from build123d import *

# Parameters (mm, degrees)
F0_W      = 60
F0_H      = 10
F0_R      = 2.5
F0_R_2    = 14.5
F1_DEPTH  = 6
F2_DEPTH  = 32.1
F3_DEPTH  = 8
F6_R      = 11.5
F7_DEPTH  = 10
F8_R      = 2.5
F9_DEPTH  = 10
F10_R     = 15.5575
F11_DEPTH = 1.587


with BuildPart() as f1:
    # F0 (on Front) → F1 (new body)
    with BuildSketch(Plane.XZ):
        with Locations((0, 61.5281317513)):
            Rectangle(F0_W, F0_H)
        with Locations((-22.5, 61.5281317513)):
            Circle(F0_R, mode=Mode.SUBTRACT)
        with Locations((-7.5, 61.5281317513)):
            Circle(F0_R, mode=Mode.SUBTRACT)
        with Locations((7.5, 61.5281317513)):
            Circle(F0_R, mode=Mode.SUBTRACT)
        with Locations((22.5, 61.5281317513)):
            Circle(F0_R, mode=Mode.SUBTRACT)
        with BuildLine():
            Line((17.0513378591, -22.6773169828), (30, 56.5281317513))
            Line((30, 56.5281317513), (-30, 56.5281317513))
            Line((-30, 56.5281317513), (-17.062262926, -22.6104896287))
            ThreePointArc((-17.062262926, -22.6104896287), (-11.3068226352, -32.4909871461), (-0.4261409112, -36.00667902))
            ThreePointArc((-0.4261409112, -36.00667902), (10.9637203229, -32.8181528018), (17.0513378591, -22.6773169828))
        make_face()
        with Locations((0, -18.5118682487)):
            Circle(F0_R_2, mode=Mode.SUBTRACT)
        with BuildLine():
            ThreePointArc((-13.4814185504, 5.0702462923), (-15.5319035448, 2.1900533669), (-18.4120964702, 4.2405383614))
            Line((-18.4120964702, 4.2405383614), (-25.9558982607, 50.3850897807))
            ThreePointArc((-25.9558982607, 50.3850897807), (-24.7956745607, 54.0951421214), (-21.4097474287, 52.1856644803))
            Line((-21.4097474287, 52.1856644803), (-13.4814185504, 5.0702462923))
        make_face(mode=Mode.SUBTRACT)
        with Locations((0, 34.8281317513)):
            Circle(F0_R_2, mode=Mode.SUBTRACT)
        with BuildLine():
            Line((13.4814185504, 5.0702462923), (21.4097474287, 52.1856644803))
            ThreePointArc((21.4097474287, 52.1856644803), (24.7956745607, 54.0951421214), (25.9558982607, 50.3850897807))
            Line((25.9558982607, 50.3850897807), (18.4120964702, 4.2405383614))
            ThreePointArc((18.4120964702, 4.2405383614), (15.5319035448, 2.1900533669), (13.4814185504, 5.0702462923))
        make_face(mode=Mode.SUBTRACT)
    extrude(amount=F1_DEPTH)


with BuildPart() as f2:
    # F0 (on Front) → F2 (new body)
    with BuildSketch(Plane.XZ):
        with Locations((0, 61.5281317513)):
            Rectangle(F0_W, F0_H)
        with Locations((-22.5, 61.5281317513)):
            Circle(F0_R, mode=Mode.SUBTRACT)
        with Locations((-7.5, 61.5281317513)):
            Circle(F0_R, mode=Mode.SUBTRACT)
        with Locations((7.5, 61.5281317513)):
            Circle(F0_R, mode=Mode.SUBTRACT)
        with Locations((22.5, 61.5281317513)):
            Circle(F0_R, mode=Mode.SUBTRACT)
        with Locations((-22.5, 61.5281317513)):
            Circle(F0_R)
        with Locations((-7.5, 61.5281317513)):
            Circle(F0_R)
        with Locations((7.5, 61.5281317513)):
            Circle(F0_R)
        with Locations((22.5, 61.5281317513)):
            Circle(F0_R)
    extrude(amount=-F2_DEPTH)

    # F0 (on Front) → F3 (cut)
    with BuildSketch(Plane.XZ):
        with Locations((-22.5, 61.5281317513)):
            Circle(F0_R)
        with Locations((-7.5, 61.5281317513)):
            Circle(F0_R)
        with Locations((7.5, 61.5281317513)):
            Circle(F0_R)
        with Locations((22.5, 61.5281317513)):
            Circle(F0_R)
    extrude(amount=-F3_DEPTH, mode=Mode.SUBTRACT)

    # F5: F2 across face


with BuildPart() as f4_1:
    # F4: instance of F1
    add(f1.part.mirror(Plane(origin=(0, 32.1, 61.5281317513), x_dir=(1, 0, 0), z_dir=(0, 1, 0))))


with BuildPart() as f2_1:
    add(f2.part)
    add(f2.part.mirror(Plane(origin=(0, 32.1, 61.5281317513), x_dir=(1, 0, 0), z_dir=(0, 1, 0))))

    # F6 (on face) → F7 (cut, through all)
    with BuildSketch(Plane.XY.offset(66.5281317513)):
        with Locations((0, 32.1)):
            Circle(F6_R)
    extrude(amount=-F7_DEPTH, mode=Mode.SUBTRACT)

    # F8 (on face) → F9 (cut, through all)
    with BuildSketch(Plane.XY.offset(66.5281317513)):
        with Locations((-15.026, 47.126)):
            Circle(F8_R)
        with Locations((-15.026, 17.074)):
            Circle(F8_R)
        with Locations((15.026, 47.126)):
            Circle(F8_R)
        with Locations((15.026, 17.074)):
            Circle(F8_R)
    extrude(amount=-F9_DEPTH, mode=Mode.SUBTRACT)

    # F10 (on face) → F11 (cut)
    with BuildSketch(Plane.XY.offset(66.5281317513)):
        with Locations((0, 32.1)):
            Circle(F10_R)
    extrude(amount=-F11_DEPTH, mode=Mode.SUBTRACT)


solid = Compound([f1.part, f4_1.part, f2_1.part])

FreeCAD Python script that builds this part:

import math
import FreeCAD as App
import Part
import Sketcher
Q = App.Units.Quantity

doc = App.newDocument("Part")
params = doc.addObject("Spreadsheet::Sheet", "Params")
for row, (alias, value) in enumerate([
    ("sketch1_diameter", "29 mm"),
    ("sketch1_diameter2", "5 mm"),
    ("sketch1_radius", "16 mm"),
    ("sketch1_width", "60 mm"),
    ("sketch1_height", "10 mm"),
    ("pad1_length", "6 mm"),
    ("sketch2_width", "60 mm"),
    ("sketch2_height", "10 mm"),
    ("pad2_length", "32.1 mm"),
    ("sketch3_diameter", "5 mm"),
    ("pocket1_length", "8 mm"),
    ("sketch4_diameter", "23 mm"),
    ("sketch5_diameter", "5 mm"),
    ("pocket4_length", "1.587 mm"),
], start=1):
    params.set(f"A{row}", alias)
    params.set(f"B{row}", "=" + value)
    params.setAlias(f"B{row}", alias)

body = doc.addObject("PartDesign::Body", "Body")

# Sketch on XZ plane
sketch1 = body.newObject("Sketcher::SketchObject", "Sketch")
sketch1.AttachmentSupport = (doc.getObject("XZ_Plane"), [""])
sketch1.MapMode = "FlatFace"
sketch1.addGeometry(Part.LineSegment(App.Vector(-30, 66.5, 0), App.Vector(-30, 56.5, 0)), False)
sketch1.addGeometry(Part.LineSegment(App.Vector(-30, 56.5, 0), App.Vector(-17.1, -22.6, 0)), False)
sketch1.addGeometry(Part.ArcOfCircle(Part.Circle(App.Vector(-1.3, -20, 0), App.Vector(0, 0, 1), 16), math.radians(-171), math.radians(-87)), False)
sketch1.addGeometry(Part.ArcOfCircle(Part.Circle(App.Vector(1.3, -20.1, 0), App.Vector(0, 0, 1), 16), math.radians(-96), math.radians(-9)), False)
sketch1.addGeometry(Part.LineSegment(App.Vector(17.1, -22.7, 0), App.Vector(30, 56.5, 0)), False)
sketch1.addGeometry(Part.LineSegment(App.Vector(30, 56.5, 0), App.Vector(30, 66.5, 0)), False)
sketch1.addGeometry(Part.LineSegment(App.Vector(30, 66.5, 0), App.Vector(-30, 66.5, 0)), False)
sketch1.addGeometry(Part.Circle(App.Vector(0, -18.5, 0), App.Vector(0, 0, 1), 14.5), False)
sketch1.addGeometry(Part.LineSegment(App.Vector(-21.4, 52.2, 0), App.Vector(-13.5, 5.1, 0)), False)
sketch1.addGeometry(Part.ArcOfCircle(Part.Circle(App.Vector(-15.9, 4.7, 0), App.Vector(0, 0, 1), 2.5), math.radians(-170), math.radians(10)), False)
sketch1.addGeometry(Part.LineSegment(App.Vector(-18.4, 4.2, 0), App.Vector(-26, 50.4, 0)), False)
sketch1.addGeometry(Part.ArcOfCircle(Part.Circle(App.Vector(-23.9, 51.8, 0), App.Vector(0, 0, 1), 2.5), math.radians(10), math.radians(214)), False)
sketch1.addGeometry(Part.Circle(App.Vector(-22.5, 61.5, 0), App.Vector(0, 0, 1), 2.5), False)
sketch1.addGeometry(Part.Circle(App.Vector(-7.5, 61.5, 0), App.Vector(0, 0, 1), 2.5), False)
sketch1.addGeometry(Part.Circle(App.Vector(0, 34.8, 0), App.Vector(0, 0, 1), 14.5), False)
sketch1.addGeometry(Part.ArcOfCircle(Part.Circle(App.Vector(15.9, 4.7, 0), App.Vector(0, 0, 1), 2.5), math.radians(170), math.radians(350)), False)
sketch1.addGeometry(Part.LineSegment(App.Vector(13.5, 5.1, 0), App.Vector(21.4, 52.2, 0)), False)
sketch1.addGeometry(Part.ArcOfCircle(Part.Circle(App.Vector(23.9, 51.8, 0), App.Vector(0, 0, 1), 2.5), math.radians(-34), math.radians(170)), False)
sketch1.addGeometry(Part.LineSegment(App.Vector(26, 50.4, 0), App.Vector(18.4, 4.2, 0)), False)
sketch1.addGeometry(Part.Circle(App.Vector(7.5, 61.5, 0), App.Vector(0, 0, 1), 2.5), False)
sketch1.addGeometry(Part.Circle(App.Vector(22.5, 61.5, 0), App.Vector(0, 0, 1), 2.5), False)
sketch1.addConstraint(Sketcher.Constraint("Coincident", 0, 2, 1, 1))
sketch1.addConstraint(Sketcher.Constraint("Tangent", 1, 2, 2, 1))
sketch1.addConstraint(Sketcher.Constraint("Coincident", 2, 2, 3, 1))
sketch1.addConstraint(Sketcher.Constraint("Tangent", 3, 2, 4, 1))
sketch1.addConstraint(Sketcher.Constraint("Coincident", 4, 2, 5, 1))
sketch1.addConstraint(Sketcher.Constraint("Coincident", 5, 2, 6, 1))
sketch1.addConstraint(Sketcher.Constraint("Coincident", 6, 2, 0, 1))
sketch1.addConstraint(Sketcher.Constraint("Tangent", 8, 2, 9, 2))
sketch1.addConstraint(Sketcher.Constraint("Coincident", 9, 1, 10, 1))
sketch1.addConstraint(Sketcher.Constraint("Coincident", 10, 2, 11, 2))
sketch1.addConstraint(Sketcher.Constraint("Tangent", 11, 1, 8, 1))
sketch1.addConstraint(Sketcher.Constraint("Tangent", 15, 1, 16, 1))
sketch1.addConstraint(Sketcher.Constraint("Tangent", 16, 2, 17, 2))
sketch1.addConstraint(Sketcher.Constraint("Coincident", 17, 1, 18, 1))
sketch1.addConstraint(Sketcher.Constraint("Coincident", 18, 2, 15, 2))
sketch1.addConstraint(Sketcher.Constraint("Vertical", 0))
sketch1.addConstraint(Sketcher.Constraint("Vertical", 5))
sketch1.addConstraint(Sketcher.Constraint("Horizontal", 6))
sketch1.addConstraint(Sketcher.Constraint("Equal", 2, 3))
sketch1.addConstraint(Sketcher.Constraint("Equal", 9, 11))
sketch1.addConstraint(Sketcher.Constraint("Equal", 11, 12))
sketch1.addConstraint(Sketcher.Constraint("Equal", 12, 13))
sketch1.addConstraint(Sketcher.Constraint("Equal", 7, 14))
sketch1.addConstraint(Sketcher.Constraint("Equal", 13, 15))
sketch1.addConstraint(Sketcher.Constraint("Equal", 15, 17))
sketch1.addConstraint(Sketcher.Constraint("Equal", 17, 19))
sketch1.addConstraint(Sketcher.Constraint("Equal", 19, 20))
sketch1.addConstraint(Sketcher.Constraint("Symmetric", 9, 3, 15, 3, -2))
sketch1.addConstraint(Sketcher.Constraint("Symmetric", 11, 3, 17, 3, -2))
sketch1.addConstraint(Sketcher.Constraint("Symmetric", 13, 3, 19, 3, -2))
sketch1.addConstraint(Sketcher.Constraint("Symmetric", 12, 3, 20, 3, -2))
sketch1.addConstraint(Sketcher.Constraint("Symmetric", 0, 2, 4, 2, -2))
sketch1.addConstraint(Sketcher.Constraint("PointOnObject", 7, 3, -2))
sketch1.addConstraint(Sketcher.Constraint("PointOnObject", 14, 3, -2))
sketch1.addConstraint(Sketcher.Constraint("Parallel", 1, 10))
sketch1.addConstraint(Sketcher.Constraint("Parallel", 4, 18))
sketch1.addConstraint(Sketcher.Constraint("Horizontal", 12, 3, 13, 3))
sketch1.addConstraint(Sketcher.Constraint("Horizontal", 10, 2, 17, 1))
sketch1.addConstraint(Sketcher.Constraint("Horizontal", 9, 1, 18, 2))
sketch1.addConstraint(Sketcher.Constraint("Diameter", 7, Q("29 mm")))
sketch1.addConstraint(Sketcher.Constraint("Diameter", 12, Q("5 mm")))
sketch1.addConstraint(Sketcher.Constraint("Radius", 2, Q("16 mm")))
sketch1.addConstraint(Sketcher.Constraint("DistanceX", 6, 2, 6, 1, Q("60 mm")))
sketch1.addConstraint(Sketcher.Constraint("DistanceY", 0, 2, 0, 1, Q("10 mm")))
sketch1.addConstraint(Sketcher.Constraint("DistanceX", 12, 3, 13, 3, Q("15 mm")))
sketch1.addConstraint(Sketcher.Constraint("DistanceX", 13, 3, 19, 3, Q("15 mm")))
sketch1.addConstraint(Sketcher.Constraint("DistanceY", 0, 2, 12, 3, Q("5 mm")))
sketch1.addConstraint(Sketcher.Constraint("DistanceY", 14, 3, 13, 3, Q("26.7 mm")))
sketch1.addConstraint(Sketcher.Constraint("DistanceY", 7, 3, 12, 3, Q("80.04 mm")))
sketch1.addConstraint(Sketcher.Constraint("DistanceX", 10, 2, -1, 1, Q("25.955898 mm")))
sketch1.addConstraint(Sketcher.Constraint("DistanceX", 3, 3, 15, 3, Q("14.685801 mm")))
sketch1.addConstraint(Sketcher.Constraint("Distance", 1, Q("80.189192 mm")))
sketch1.addConstraint(Sketcher.Constraint("Distance", 8, Q("47.77783 mm")))
sketch1.addConstraint(Sketcher.Constraint("DistanceX", 2, 3, -1, 1, Q("1.271881 mm")))
sketch1.addConstraint(Sketcher.Constraint("DistanceY", 7, 3, -1, 1, Q("18.511868 mm")))
sketch1.addConstraint(Sketcher.Constraint("DistanceY", -1, 1, 11, 3, Q("51.770811 mm")))
sketch1.addConstraint(Sketcher.Constraint("DistanceX", 2, 2, -1, 1, Q("0.426141 mm")))
sketch1.addConstraint(Sketcher.Constraint("DistanceY", -1, 1, 9, 1, Q("4.240538 mm")))
sketch1.setExpression("Constraints[39]", "Params.sketch1_diameter")
sketch1.setExpression("Constraints[40]", "Params.sketch1_diameter2")
sketch1.setExpression("Constraints[41]", "Params.sketch1_radius")
sketch1.setExpression("Constraints[42]", "Params.sketch1_width")
sketch1.setExpression("Constraints[43]", "Params.sketch1_height")
pad1 = body.newObject("PartDesign::Pad", "Pad")
pad1.Profile = sketch1
pad1.setExpression("Length", "Params.pad1_length")
body2 = doc.addObject("PartDesign::Body", "Body001")

# Sketch on XZ plane
sketch2 = body2.newObject("Sketcher::SketchObject", "Sketch001")
sketch2.AttachmentSupport = (doc.getObject("XZ_Plane001"), [""])
sketch2.MapMode = "FlatFace"
sketch2.addGeometry(Part.LineSegment(App.Vector(-30, 67, 0), App.Vector(-30, 57, 0)), False)
sketch2.addGeometry(Part.LineSegment(App.Vector(-30, 57, 0), App.Vector(30, 57, 0)), False)
sketch2.addGeometry(Part.LineSegment(App.Vector(30, 57, 0), App.Vector(30, 67, 0)), False)
sketch2.addGeometry(Part.LineSegment(App.Vector(30, 67, 0), App.Vector(-30, 67, 0)), False)
sketch2.addConstraint(Sketcher.Constraint("Coincident", 0, 2, 1, 1))
sketch2.addConstraint(Sketcher.Constraint("Coincident", 1, 2, 2, 1))
sketch2.addConstraint(Sketcher.Constraint("Coincident", 2, 2, 3, 1))
sketch2.addConstraint(Sketcher.Constraint("Coincident", 3, 2, 0, 1))
sketch2.addConstraint(Sketcher.Constraint("Vertical", 0))
sketch2.addConstraint(Sketcher.Constraint("Horizontal", 1))
sketch2.addConstraint(Sketcher.Constraint("Vertical", 2))
sketch2.addConstraint(Sketcher.Constraint("Horizontal", 3))
sketch2.addConstraint(Sketcher.Constraint("DistanceX", 1, 1, 1, 2, Q("60 mm")))
sketch2.addConstraint(Sketcher.Constraint("DistanceY", 0, 2, 0, 1, Q("10 mm")))
sketch2.addConstraint(Sketcher.Constraint("DistanceX", 0, 2, -1, 1, Q("30 mm")))
sketch2.addConstraint(Sketcher.Constraint("DistanceY", -1, 1, 0, 2, Q("56.528132 mm")))
sketch2.setExpression("Constraints[8]", "Params.sketch2_width")
sketch2.setExpression("Constraints[9]", "Params.sketch2_height")
pad2 = body2.newObject("PartDesign::Pad", "Pad001")
pad2.Profile = sketch2
pad2.setExpression("Length", "Params.pad2_length")
pad2.Reversed = True

# Sketch on XZ plane
sketch3 = body2.newObject("Sketcher::SketchObject", "Sketch002")
sketch3.AttachmentSupport = (doc.getObject("XZ_Plane001"), [""])
sketch3.MapMode = "FlatFace"
sketch3.addGeometry(Part.Circle(App.Vector(-22.5, 61.5, 0), App.Vector(0, 0, 1), 2.5), False)
sketch3.addGeometry(Part.Circle(App.Vector(-7.5, 61.5, 0), App.Vector(0, 0, 1), 2.5), False)
sketch3.addGeometry(Part.Circle(App.Vector(7.5, 61.5, 0), App.Vector(0, 0, 1), 2.5), False)
sketch3.addGeometry(Part.Circle(App.Vector(22.5, 61.5, 0), App.Vector(0, 0, 1), 2.5), False)
sketch3.addConstraint(Sketcher.Constraint("Equal", 0, 1))
sketch3.addConstraint(Sketcher.Constraint("Equal", 1, 2))
sketch3.addConstraint(Sketcher.Constraint("Equal", 2, 3))
sketch3.addConstraint(Sketcher.Constraint("Symmetric", 1, 3, 2, 3, -2))
sketch3.addConstraint(Sketcher.Constraint("Symmetric", 0, 3, 3, 3, -2))
sketch3.addConstraint(Sketcher.Constraint("Horizontal", 0, 3, 1, 3))
sketch3.addConstraint(Sketcher.Constraint("Diameter", 0, Q("5 mm")))
sketch3.addConstraint(Sketcher.Constraint("DistanceX", 0, 3, 1, 3, Q("15 mm")))
sketch3.addConstraint(Sketcher.Constraint("DistanceX", 1, 3, 2, 3, Q("15 mm")))
sketch3.addConstraint(Sketcher.Constraint("DistanceY", -1, 1, 0, 3, Q("61.528132 mm")))
sketch3.setExpression("Constraints[6]", "Params.sketch3_diameter")
pocket1 = body2.newObject("PartDesign::Pocket", "Pocket")
pocket1.Profile = sketch3
pocket1.setExpression("Length", "Params.pocket1_length")
body3 = doc.addObject("PartDesign::Body", "Body002")
doc.recompute()

mirroring = doc.addObject("Part::Mirroring", "Mirroring")
mirroring.Source = body
mirroring.Base = App.Vector(0, 32.1, 61.528132)
mirroring.Normal = App.Vector(0, 1, 0)
body3.BaseFeature = mirroring
doc.recompute()
body4 = doc.addObject("PartDesign::Body", "Body003")
doc.recompute()

body4.BaseFeature = body2
doc.recompute()

mirroring2 = doc.addObject("Part::Mirroring", "Mirroring001")
mirroring2.Source = body2
mirroring2.Base = App.Vector(0, 32.1, 61.528132)
mirroring2.Normal = App.Vector(0, 1, 0)
body5 = doc.addObject("PartDesign::Body", "Body004")
body5.BaseFeature = mirroring2
boolean = body4.newObject("PartDesign::Boolean", "Boolean")
boolean.Type = "Fuse"
boolean.addObjects([body5])
doc.recompute()

# Sketch on XY plane
sketch4 = body4.newObject("Sketcher::SketchObject", "Sketch003")
sketch4.AttachmentSupport = (doc.getObject("XY_Plane003"), [""])
sketch4.MapMode = "FlatFace"
sketch4.AttachmentOffset = App.Placement(App.Vector(0, 0, 66.528132), App.Rotation())
sketch4.addGeometry(Part.Circle(App.Vector(0, 32, 0), App.Vector(0, 0, 1), 12), False)
sketch4.addConstraint(Sketcher.Constraint("PointOnObject", 0, 3, -2))
sketch4.addConstraint(Sketcher.Constraint("Diameter", 0, Q("23 mm")))
sketch4.addConstraint(Sketcher.Constraint("DistanceY", -1, 1, 0, 3, Q("32.1 mm")))
sketch4.setExpression("Constraints[1]", "Params.sketch4_diameter")
pocket2 = body4.newObject("PartDesign::Pocket", "Pocket001")
pocket2.Profile = sketch4
pocket2.Type = "ThroughAll"

# Sketch on XY plane
sketch5 = body4.newObject("Sketcher::SketchObject", "Sketch004")
sketch5.AttachmentSupport = (doc.getObject("XY_Plane003"), [""])
sketch5.MapMode = "FlatFace"
sketch5.AttachmentOffset = App.Placement(App.Vector(0, 0, 66.528132), App.Rotation())
sketch5.addGeometry(Part.Circle(App.Vector(-15, 47.1, 0), App.Vector(0, 0, 1), 2.5), False)
sketch5.addGeometry(Part.Circle(App.Vector(-15, 17.1, 0), App.Vector(0, 0, 1), 2.5), False)
sketch5.addGeometry(Part.Circle(App.Vector(15, 47.1, 0), App.Vector(0, 0, 1), 2.5), False)
sketch5.addGeometry(Part.Circle(App.Vector(15, 17.1, 0), App.Vector(0, 0, 1), 2.5), False)
sketch5.addConstraint(Sketcher.Constraint("Equal", 0, 1))
sketch5.addConstraint(Sketcher.Constraint("Equal", 1, 2))
sketch5.addConstraint(Sketcher.Constraint("Equal", 2, 3))
sketch5.addConstraint(Sketcher.Constraint("Symmetric", 0, 3, 2, 3, -2))
sketch5.addConstraint(Sketcher.Constraint("Symmetric", 1, 3, 3, 3, -2))
sketch5.addConstraint(Sketcher.Constraint("Vertical", 0, 3, 1, 3))
sketch5.addConstraint(Sketcher.Constraint("Diameter", 0, Q("5 mm")))
sketch5.addConstraint(Sketcher.Constraint("DistanceX", 0, 3, -1, 1, Q("15.026 mm")))
sketch5.addConstraint(Sketcher.Constraint("DistanceY", -1, 1, 0, 3, Q("47.126 mm")))
sketch5.addConstraint(Sketcher.Constraint("DistanceY", -1, 1, 1, 3, Q("17.074 mm")))
sketch5.setExpression("Constraints[6]", "Params.sketch5_diameter")
pocket3 = body4.newObject("PartDesign::Pocket", "Pocket002")
pocket3.Profile = sketch5
pocket3.Type = "ThroughAll"

# Sketch on XY plane
sketch6 = body4.newObject("Sketcher::SketchObject", "Sketch005")
sketch6.AttachmentSupport = (doc.getObject("XY_Plane003"), [""])
sketch6.MapMode = "FlatFace"
sketch6.AttachmentOffset = App.Placement(App.Vector(0, 0, 66.528132), App.Rotation())
sketch6.addGeometry(Part.Circle(App.Vector(0, 32, 0), App.Vector(0, 0, 1), 16), False)
sketch6.addConstraint(Sketcher.Constraint("PointOnObject", 0, 3, -2))
sketch6.addConstraint(Sketcher.Constraint("Diameter", 0, Q("31.115 mm")))
sketch6.addConstraint(Sketcher.Constraint("DistanceY", -1, 1, 0, 3, Q("32.1 mm")))
pocket4 = body4.newObject("PartDesign::Pocket", "Pocket003")
pocket4.Profile = sketch6
pocket4.setExpression("Length", "Params.pocket4_length")
mirroring.Visibility = False
mirroring2.Visibility = False

doc.recompute()
